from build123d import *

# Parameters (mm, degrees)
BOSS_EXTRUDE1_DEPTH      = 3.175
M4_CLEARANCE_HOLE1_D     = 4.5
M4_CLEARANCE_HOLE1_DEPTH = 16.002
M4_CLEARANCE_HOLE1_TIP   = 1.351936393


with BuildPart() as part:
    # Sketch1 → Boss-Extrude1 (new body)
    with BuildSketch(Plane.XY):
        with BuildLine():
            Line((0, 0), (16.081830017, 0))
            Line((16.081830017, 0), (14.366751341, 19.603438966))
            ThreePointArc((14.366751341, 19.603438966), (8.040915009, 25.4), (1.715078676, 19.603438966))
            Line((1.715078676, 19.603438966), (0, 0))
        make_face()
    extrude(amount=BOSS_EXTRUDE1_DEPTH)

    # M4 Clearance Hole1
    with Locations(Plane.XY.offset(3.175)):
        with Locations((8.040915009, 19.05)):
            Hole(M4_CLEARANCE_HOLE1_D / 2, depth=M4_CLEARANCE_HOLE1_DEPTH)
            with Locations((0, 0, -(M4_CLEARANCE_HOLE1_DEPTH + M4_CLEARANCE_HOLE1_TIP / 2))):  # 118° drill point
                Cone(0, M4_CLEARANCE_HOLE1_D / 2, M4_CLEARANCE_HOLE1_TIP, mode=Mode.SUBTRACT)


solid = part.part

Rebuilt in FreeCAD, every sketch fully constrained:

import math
import FreeCAD as App
import Part
import Sketcher
Q = App.Units.Quantity

doc = App.newDocument("Part")
body = doc.addObject("PartDesign::Body", "Body")

# Sketch on XY plane
sketch1 = doc.addObject("Sketcher::SketchObject", "Sketch")
body.addObject(sketch1)
sketch1.AttachmentSupport = (doc.XY_Plane, [""])
sketch1.MapMode = "FlatFace"
sketch1.addGeometry(Part.LineSegment(App.Vector(0, 0, 0), App.Vector(16.08183, 0, 0)), False)
sketch1.addGeometry(Part.LineSegment(App.Vector(16.08183, 0, 0), App.Vector(14.366751, 19.603439, 0)), False)
sketch1.addGeometry(Part.ArcOfCircle(Part.Circle(App.Vector(8.040915, 19.05, 0), App.Vector(0, 0, 1), 6.35), math.radians(5), math.radians(175)), False)
sketch1.addGeometry(Part.LineSegment(App.Vector(1.715079, 19.603439, 0), App.Vector(0, 0, 0)), False)
sketch1.addConstraint(Sketcher.Constraint("Coincident", 0, 2, 1, 1))
sketch1.addConstraint(Sketcher.Constraint("Tangent", 1, 2, 2, 1))
sketch1.addConstraint(Sketcher.Constraint("Tangent", 2, 2, 3, 1))
sketch1.addConstraint(Sketcher.Constraint("Coincident", 3, 2, 0, 1))
sketch1.addConstraint(Sketcher.Constraint("Horizontal", 0))
sketch1.addConstraint(Sketcher.Constraint("Coincident", 3, 2, -1, 1))
sketch1.addConstraint(Sketcher.Constraint("Horizontal", 1, 2, 2, 2))
sketch1.addConstraint(Sketcher.Constraint("Radius", 2, Q("0.25 in")))
sketch1.addConstraint(Sketcher.Constraint("Angle", 1, Q("95 deg")))
sketch1.addConstraint(Sketcher.Constraint("DistanceY", -1, 1, 2, 3, Q("0.75 in")))
pad1 = doc.addObject("PartDesign::Pad", "Pad")
body.addObject(pad1)
pad1.Profile = sketch1
pad1.Length = Q("0.125 in")

# Sketch on XY plane
sketch2 = doc.addObject("Sketcher::SketchObject", "Sketch001")
body.addObject(sketch2)
sketch2.AttachmentSupport = (doc.XY_Plane, [""])
sketch2.MapMode = "FlatFace"
sketch2.AttachmentOffset = App.Placement(App.Vector(0, 0, 0.125 * 25.4), App.Rotation())
sketch2.addGeometry(Part.Circle(App.Vector(8.040915, 19.05, 0), App.Vector(0, 0, 1), 2.25), False)
sketch2.addConstraint(Sketcher.Constraint("Diameter", 0, Q("4.5 mm")))
sketch2.addConstraint(Sketcher.Constraint("DistanceY", -1, 1, 0, 3, Q("0.75 in")))
sketch2.addConstraint(Sketcher.Constraint("DistanceX", -1, 1, 0, 3, Q("8.040915 mm")))
doc.recompute()
hole = doc.addObject("PartDesign::Hole", "Hole")
body.addObject(hole)
hole.Profile = sketch2
hole.ThreadType = "None"
hole.Diameter = 4.5
hole.DepthType = "Dimension"
hole.Depth = Q("0.63 in")
hole.DrillPoint = "Angled"
hole.DrillPointAngle = 118

doc.recompute()
